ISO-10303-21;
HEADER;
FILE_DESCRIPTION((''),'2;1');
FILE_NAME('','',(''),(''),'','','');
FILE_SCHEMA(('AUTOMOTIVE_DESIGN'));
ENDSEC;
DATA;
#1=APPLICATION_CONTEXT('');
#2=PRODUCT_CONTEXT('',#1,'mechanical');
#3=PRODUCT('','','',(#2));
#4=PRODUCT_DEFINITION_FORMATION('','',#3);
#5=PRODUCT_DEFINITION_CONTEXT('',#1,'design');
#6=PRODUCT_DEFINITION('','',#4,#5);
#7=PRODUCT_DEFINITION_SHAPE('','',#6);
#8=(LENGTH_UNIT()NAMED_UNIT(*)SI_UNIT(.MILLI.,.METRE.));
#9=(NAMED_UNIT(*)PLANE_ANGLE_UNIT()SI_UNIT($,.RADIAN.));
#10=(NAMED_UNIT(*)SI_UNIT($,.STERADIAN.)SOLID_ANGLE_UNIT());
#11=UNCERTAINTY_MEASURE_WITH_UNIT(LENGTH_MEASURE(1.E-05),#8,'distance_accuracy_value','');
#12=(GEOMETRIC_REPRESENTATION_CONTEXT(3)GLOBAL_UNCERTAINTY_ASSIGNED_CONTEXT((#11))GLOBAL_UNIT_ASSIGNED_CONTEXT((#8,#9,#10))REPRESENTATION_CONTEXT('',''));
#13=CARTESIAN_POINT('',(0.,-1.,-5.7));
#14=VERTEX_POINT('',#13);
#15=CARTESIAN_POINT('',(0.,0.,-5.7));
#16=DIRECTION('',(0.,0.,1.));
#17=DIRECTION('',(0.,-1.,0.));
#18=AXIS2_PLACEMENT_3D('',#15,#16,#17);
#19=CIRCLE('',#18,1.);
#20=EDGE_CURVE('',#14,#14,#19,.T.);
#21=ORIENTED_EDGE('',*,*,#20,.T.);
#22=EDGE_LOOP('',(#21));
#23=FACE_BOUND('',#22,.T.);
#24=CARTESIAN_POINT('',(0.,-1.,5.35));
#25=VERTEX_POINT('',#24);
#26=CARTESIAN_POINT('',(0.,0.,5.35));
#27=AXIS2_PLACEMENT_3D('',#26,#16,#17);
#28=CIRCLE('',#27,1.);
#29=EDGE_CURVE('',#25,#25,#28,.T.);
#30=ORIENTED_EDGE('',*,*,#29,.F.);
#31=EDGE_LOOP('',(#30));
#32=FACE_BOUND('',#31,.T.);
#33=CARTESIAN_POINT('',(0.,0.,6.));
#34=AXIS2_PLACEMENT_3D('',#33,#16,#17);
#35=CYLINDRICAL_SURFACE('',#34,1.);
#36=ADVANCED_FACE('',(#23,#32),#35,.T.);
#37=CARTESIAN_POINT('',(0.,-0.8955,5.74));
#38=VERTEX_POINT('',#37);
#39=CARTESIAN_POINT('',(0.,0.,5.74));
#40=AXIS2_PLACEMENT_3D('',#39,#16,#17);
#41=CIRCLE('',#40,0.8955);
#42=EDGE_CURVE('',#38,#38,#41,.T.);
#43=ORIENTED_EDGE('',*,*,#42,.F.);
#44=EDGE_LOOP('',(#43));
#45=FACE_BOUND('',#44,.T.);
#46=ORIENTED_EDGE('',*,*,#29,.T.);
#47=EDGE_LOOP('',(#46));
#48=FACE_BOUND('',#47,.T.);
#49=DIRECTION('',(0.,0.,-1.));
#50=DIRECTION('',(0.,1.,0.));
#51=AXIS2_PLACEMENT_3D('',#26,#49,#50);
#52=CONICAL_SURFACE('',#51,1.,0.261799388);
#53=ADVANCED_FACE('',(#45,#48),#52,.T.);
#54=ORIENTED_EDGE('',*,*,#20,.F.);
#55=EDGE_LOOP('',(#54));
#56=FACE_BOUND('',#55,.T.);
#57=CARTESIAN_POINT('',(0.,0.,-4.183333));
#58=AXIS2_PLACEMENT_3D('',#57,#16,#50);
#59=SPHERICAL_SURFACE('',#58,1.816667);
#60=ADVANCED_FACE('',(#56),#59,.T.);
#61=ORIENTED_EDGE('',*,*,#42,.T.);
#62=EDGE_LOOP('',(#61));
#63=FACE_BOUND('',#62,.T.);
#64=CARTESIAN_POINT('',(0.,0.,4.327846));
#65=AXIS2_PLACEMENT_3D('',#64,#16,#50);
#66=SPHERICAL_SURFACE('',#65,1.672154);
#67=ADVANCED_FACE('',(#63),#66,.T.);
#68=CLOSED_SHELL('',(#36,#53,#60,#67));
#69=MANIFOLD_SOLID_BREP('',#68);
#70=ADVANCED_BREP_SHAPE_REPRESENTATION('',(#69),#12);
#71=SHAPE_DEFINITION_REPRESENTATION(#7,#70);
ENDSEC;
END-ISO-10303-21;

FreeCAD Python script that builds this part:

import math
import FreeCAD as App
import Part
import Sketcher
from FreeCAD import Vector
Q = App.Units.Quantity

doc = App.newDocument("Part")
body = doc.addObject("PartDesign::Body", "Body")

# Sketch on YZ plane
sketch1 = body.newObject("Sketcher::SketchObject", "Sketch")
sketch1.AttachmentSupport = (doc.getObject("YZ_Plane"), [""])
sketch1.MapMode = "FlatFace"
sketch1.addGeometry([
    Part.LineSegment(Vector(0, 6, 0), Vector(0, -6, 0)),  # 0
    Part.ArcOfCircle(Part.Circle(Vector(0, -4.18, 0), Vector(0, 0, 1), 1.82), math.radians(-90), math.radians(-57)),  # 1
    Part.LineSegment(Vector(1, -5.7, 0), Vector(1, 5.35, 0)),  # 2
    Part.LineSegment(Vector(1, 5.35, 0), Vector(0.9, 5.74, 0)),  # 3
    Part.ArcOfCircle(Part.Circle(Vector(0, 4.33, 0), Vector(0, 0, 1), 1.67), math.radians(58), math.radians(90)),  # 4
], False)
sketch1.addConstraint([
    Sketcher.Constraint("Coincident", 0, 2, 1, 1),
    Sketcher.Constraint("Coincident", 1, 2, 2, 1),
    Sketcher.Constraint("Coincident", 2, 2, 3, 1),
    Sketcher.Constraint("Coincident", 3, 2, 4, 1),
    Sketcher.Constraint("Coincident", 4, 2, 0, 1),
    Sketcher.Constraint("Vertical", 0),
    Sketcher.Constraint("Vertical", 2),
    Sketcher.Constraint("Symmetric", 0, 2, 4, 2, -1, 1),
    Sketcher.Constraint("PointOnObject", 1, 3, -2),
    Sketcher.Constraint("PointOnObject", 4, 3, -2),
    Sketcher.Constraint("DistanceY", 0, 2, 0, 1, Q("12 mm")),
    Sketcher.Constraint("Angle", 3, Q("105 deg")),
    Sketcher.Constraint("DistanceX", -1, 1, 1, 2, Q("1 mm")),
    Sketcher.Constraint("DistanceY", 2, 1, 2, 2, Q("11.05 mm")),
    Sketcher.Constraint("DistanceY", 1, 2, -1, 1, Q("5.7 mm")),
    Sketcher.Constraint("DistanceY", -1, 1, 3, 2, Q("5.74 mm")),
])
revolution = body.newObject("PartDesign::Revolution", "Revolution")
revolution.Profile = sketch1
revolution.ReferenceAxis = (sketch1, ["V_Axis"])
revolution.Angle = 360

doc.recompute()
